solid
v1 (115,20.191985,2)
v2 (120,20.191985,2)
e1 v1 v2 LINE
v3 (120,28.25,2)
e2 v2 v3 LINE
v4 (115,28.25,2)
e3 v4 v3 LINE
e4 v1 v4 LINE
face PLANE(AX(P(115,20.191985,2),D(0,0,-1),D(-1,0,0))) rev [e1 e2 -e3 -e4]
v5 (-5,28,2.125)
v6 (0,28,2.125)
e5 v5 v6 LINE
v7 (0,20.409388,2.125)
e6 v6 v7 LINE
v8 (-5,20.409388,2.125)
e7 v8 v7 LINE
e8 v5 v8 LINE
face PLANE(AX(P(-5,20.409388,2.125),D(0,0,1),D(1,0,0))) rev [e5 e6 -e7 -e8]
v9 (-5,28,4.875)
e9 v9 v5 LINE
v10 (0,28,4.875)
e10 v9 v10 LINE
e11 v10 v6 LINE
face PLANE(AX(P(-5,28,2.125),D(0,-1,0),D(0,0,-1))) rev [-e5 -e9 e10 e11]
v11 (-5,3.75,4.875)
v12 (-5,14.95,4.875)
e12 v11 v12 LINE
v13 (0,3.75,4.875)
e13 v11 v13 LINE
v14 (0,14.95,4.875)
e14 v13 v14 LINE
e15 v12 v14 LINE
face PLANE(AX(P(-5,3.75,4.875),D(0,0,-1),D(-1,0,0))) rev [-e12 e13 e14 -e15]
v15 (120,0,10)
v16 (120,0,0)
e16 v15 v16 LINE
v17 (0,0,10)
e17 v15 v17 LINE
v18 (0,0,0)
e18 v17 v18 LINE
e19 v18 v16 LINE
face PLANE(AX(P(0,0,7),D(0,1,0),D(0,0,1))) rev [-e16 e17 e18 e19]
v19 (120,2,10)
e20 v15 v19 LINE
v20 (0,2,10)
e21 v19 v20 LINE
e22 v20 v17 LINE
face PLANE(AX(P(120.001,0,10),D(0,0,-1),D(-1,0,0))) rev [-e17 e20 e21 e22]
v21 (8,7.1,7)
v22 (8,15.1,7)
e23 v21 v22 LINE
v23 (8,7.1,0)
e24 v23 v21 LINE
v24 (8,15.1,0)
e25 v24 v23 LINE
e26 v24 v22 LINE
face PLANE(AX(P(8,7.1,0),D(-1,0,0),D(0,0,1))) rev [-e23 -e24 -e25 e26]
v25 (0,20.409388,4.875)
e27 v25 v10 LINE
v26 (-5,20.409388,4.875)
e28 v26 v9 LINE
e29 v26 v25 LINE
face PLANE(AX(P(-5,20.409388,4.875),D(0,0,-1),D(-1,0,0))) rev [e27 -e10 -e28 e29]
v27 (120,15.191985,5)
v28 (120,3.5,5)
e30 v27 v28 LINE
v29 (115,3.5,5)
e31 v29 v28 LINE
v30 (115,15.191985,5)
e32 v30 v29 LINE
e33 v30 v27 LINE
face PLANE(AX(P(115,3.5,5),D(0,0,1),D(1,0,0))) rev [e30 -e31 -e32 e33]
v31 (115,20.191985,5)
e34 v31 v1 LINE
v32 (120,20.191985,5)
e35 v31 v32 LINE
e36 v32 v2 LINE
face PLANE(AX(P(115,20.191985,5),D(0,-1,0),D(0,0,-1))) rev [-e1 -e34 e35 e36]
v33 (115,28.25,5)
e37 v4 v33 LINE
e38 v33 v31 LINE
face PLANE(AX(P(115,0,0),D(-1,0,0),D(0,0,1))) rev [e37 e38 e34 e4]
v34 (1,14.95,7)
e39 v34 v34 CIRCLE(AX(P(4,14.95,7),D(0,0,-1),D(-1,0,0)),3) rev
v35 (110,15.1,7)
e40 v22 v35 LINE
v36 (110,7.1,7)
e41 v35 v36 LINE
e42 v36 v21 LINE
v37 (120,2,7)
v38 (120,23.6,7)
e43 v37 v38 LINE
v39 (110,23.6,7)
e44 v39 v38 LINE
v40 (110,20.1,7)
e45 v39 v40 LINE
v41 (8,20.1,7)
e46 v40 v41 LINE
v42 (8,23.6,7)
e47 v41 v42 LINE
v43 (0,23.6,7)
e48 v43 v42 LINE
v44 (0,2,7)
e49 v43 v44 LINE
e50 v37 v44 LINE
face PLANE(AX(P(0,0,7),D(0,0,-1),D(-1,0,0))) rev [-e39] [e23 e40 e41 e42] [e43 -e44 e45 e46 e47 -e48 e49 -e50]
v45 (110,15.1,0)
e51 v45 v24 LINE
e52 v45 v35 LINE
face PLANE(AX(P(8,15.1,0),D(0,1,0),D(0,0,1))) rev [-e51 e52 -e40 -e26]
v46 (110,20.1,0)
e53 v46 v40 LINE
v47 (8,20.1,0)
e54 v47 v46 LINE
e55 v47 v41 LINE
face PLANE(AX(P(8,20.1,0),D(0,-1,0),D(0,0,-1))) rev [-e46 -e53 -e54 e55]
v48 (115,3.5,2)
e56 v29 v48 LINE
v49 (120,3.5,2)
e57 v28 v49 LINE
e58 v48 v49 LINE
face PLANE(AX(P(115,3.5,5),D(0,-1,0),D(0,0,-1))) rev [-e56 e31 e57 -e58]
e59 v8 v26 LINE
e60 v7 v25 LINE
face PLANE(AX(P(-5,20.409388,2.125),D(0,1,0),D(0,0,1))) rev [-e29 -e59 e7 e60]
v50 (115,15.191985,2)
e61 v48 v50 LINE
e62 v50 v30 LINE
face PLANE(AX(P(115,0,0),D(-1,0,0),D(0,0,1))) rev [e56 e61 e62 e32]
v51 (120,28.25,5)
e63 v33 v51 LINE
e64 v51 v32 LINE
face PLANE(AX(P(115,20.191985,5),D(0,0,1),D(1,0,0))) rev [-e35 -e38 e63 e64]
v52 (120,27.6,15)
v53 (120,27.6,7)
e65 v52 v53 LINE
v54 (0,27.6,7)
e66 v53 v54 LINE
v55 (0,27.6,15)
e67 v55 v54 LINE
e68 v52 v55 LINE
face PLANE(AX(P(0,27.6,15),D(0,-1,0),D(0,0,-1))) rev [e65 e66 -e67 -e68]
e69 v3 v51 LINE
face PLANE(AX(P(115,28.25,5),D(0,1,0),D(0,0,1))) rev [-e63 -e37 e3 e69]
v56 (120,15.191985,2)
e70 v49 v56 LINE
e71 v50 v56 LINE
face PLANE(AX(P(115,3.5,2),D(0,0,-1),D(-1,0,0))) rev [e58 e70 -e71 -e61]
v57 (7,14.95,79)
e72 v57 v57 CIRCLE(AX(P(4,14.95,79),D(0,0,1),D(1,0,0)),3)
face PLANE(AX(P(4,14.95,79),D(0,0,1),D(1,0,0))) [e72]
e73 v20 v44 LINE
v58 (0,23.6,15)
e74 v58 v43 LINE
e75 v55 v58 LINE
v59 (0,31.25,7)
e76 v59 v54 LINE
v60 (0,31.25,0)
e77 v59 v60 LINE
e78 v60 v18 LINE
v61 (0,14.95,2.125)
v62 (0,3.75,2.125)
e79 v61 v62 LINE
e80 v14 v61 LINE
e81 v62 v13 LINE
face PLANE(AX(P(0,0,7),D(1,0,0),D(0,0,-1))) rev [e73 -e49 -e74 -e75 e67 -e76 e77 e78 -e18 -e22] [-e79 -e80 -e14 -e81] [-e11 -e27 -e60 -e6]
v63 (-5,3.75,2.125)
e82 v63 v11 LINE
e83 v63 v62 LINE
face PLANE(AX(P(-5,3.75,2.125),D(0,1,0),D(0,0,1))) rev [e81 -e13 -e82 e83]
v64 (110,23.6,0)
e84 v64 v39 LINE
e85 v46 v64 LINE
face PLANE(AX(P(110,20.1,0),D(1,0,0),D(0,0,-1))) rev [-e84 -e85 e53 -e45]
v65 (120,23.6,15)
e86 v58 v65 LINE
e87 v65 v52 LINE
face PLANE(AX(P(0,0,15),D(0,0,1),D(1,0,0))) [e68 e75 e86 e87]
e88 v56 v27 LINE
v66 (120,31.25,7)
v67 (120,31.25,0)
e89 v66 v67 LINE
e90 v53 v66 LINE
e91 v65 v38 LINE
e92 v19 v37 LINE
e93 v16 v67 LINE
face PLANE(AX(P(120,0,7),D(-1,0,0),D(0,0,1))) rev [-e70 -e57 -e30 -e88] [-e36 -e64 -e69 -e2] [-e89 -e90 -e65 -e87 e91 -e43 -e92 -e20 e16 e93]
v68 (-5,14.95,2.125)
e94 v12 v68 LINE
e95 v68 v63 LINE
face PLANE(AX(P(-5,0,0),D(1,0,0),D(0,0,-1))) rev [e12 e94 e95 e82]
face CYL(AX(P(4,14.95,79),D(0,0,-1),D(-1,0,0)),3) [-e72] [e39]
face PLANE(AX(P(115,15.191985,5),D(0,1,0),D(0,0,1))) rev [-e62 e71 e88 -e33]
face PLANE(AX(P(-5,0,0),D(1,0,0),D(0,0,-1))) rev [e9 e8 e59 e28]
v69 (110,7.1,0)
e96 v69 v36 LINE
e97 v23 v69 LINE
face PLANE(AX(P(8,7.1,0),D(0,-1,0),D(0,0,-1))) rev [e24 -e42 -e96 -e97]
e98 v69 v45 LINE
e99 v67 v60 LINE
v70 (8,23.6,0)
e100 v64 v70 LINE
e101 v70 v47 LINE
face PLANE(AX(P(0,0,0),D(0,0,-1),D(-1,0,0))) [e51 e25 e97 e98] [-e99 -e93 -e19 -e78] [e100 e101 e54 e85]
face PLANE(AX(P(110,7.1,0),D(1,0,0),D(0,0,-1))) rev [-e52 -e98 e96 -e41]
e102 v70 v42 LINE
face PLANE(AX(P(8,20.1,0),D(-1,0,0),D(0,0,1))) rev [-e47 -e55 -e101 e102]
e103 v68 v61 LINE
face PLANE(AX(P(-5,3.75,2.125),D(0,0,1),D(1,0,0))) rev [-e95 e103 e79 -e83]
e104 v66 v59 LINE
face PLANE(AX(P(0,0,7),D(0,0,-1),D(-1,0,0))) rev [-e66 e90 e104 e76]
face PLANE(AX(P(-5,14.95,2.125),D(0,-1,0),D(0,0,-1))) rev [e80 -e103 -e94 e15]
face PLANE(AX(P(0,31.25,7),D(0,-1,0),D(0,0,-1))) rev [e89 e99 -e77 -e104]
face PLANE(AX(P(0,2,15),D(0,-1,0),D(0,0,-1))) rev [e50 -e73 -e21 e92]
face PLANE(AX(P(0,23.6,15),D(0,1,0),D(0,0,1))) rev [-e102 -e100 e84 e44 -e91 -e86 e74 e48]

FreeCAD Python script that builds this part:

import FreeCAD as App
import Part
import Sketcher

V = App.Vector

doc = App.newDocument("Part")
body = doc.addObject("PartDesign::Body", "Body")

sketch1 = body.newObject("Sketcher::SketchObject", "Sketch")
sketch1.AttachmentSupport = (doc.getObject("XY_Plane"), [""])
sketch1.MapMode = "FlatFace"
sketch1.addGeometry(Part.LineSegment(V(0, 31, 0), V(0, 0, 0)), False)
sketch1.addGeometry(Part.LineSegment(V(0, 0, 0), V(120, 0, 0)), False)
sketch1.addGeometry(Part.LineSegment(V(120, 0, 0), V(120, 31, 0)), False)
sketch1.addGeometry(Part.LineSegment(V(120, 31, 0), V(0, 31, 0)), False)
sketch1.addConstraint(Sketcher.Constraint("Coincident", 0, 2, 1, 1))
sketch1.addConstraint(Sketcher.Constraint("Coincident", 1, 2, 2, 1))
sketch1.addConstraint(Sketcher.Constraint("Coincident", 2, 2, 3, 1))
sketch1.addConstraint(Sketcher.Constraint("Coincident", 3, 2, 0, 1))
sketch1.addConstraint(Sketcher.Constraint("Vertical", 0))
sketch1.addConstraint(Sketcher.Constraint("Horizontal", 1))
sketch1.addConstraint(Sketcher.Constraint("Vertical", 2))
sketch1.addConstraint(Sketcher.Constraint("Horizontal", 3))
sketch1.addConstraint(Sketcher.Constraint("Coincident", 0, 2, -1, 1))
sketch1.addConstraint(Sketcher.Constraint("DistanceX", 1, 1, 1, 2, 120.0))
sketch1.addConstraint(Sketcher.Constraint("DistanceY", 0, 2, 0, 1, 31.25))
pad1 = body.newObject("PartDesign::Pad", "Pad")
pad1.Profile = sketch1
pad1.Length = 7

sketch2 = body.newObject("Sketcher::SketchObject", "Sketch001")
sketch2.AttachmentSupport = (doc.getObject("XY_Plane"), [""])
sketch2.MapMode = "FlatFace"
sketch2.AttachmentOffset = App.Placement(V(0, 0, 7), App.Rotation())
sketch2.addGeometry(Part.LineSegment(V(0, 27.6, 0), V(0, 23.6, 0)), False)
sketch2.addGeometry(Part.LineSegment(V(0, 23.6, 0), V(120, 23.6, 0)), False)
sketch2.addGeometry(Part.LineSegment(V(120, 23.6, 0), V(120, 27.6, 0)), False)
sketch2.addGeometry(Part.LineSegment(V(120, 27.6, 0), V(0, 27.6, 0)), False)
sketch2.addGeometry(Part.LineSegment(V(0, 2, 0), V(0, 0, 0)), False)
sketch2.addGeometry(Part.LineSegment(V(0, 0, 0), V(120, 0, 0)), False)
sketch2.addGeometry(Part.LineSegment(V(120, 0, 0), V(120, 2, 0)), False)
sketch2.addGeometry(Part.LineSegment(V(120, 2, 0), V(0, 2, 0)), False)
sketch2.addConstraint(Sketcher.Constraint("Coincident", 0, 2, 1, 1))
sketch2.addConstraint(Sketcher.Constraint("Coincident", 1, 2, 2, 1))
sketch2.addConstraint(Sketcher.Constraint("Coincident", 2, 2, 3, 1))
sketch2.addConstraint(Sketcher.Constraint("Coincident", 3, 2, 0, 1))
sketch2.addConstraint(Sketcher.Constraint("Coincident", 4, 2, 5, 1))
sketch2.addConstraint(Sketcher.Constraint("Coincident", 5, 2, 6, 1))
sketch2.addConstraint(Sketcher.Constraint("Coincident", 6, 2, 7, 1))
sketch2.addConstraint(Sketcher.Constraint("Coincident", 7, 2, 4, 1))
sketch2.addConstraint(Sketcher.Constraint("Vertical", 0))
sketch2.addConstraint(Sketcher.Constraint("Horizontal", 1))
sketch2.addConstraint(Sketcher.Constraint("Vertical", 2))
sketch2.addConstraint(Sketcher.Constraint("Horizontal", 3))
sketch2.addConstraint(Sketcher.Constraint("Vertical", 4))
sketch2.addConstraint(Sketcher.Constraint("Horizontal", 5))
sketch2.addConstraint(Sketcher.Constraint("Vertical", 6))
sketch2.addConstraint(Sketcher.Constraint("Horizontal", 7))
sketch2.addConstraint(Sketcher.Constraint("Coincident", 4, 2, -1, 1))
sketch2.addConstraint(Sketcher.Constraint("PointOnObject", 0, 2, -2))
sketch2.addConstraint(Sketcher.Constraint("Vertical", 2, 2, 5, 2))
sketch2.addConstraint(Sketcher.Constraint("DistanceX", 1, 1, 1, 2, 120.0))
sketch2.addConstraint(Sketcher.Constraint("DistanceY", 0, 2, 0, 1, 4.0))
sketch2.addConstraint(Sketcher.Constraint("DistanceY", 4, 2, 4, 1, 2.0))
sketch2.addConstraint(Sketcher.Constraint("DistanceY", -1, 1, 0, 2, 23.6))
pad2 = body.newObject("PartDesign::Pad", "Pad001")
pad2.Profile = sketch2
pad2.Length = 8

sketch3 = body.newObject("Sketcher::SketchObject", "Sketch002")
sketch3.AttachmentSupport = (doc.getObject("XY_Plane"), [""])
sketch3.MapMode = "FlatFace"
sketch3.AttachmentOffset = App.Placement(V(0, 0, 7), App.Rotation())
sketch3.addGeometry(Part.LineSegment(V(8, 15.1, 0), V(8, 7.1, 0)), False)
sketch3.addGeometry(Part.LineSegment(V(8, 7.1, 0), V(110, 7.1, 0)), False)
sketch3.addGeometry(Part.LineSegment(V(110, 7.1, 0), V(110, 15.1, 0)), False)
sketch3.addGeometry(Part.LineSegment(V(110, 15.1, 0), V(8, 15.1, 0)), False)
sketch3.addGeometry(Part.LineSegment(V(8, 23.6, 0), V(8, 20.1, 0)), False)
sketch3.addGeometry(Part.LineSegment(V(8, 20.1, 0), V(110, 20.1, 0)), False)
sketch3.addGeometry(Part.LineSegment(V(110, 20.1, 0), V(110, 23.6, 0)), False)
sketch3.addGeometry(Part.LineSegment(V(110, 23.6, 0), V(8, 23.6, 0)), False)
sketch3.addConstraint(Sketcher.Constraint("Coincident", 0, 2, 1, 1))
sketch3.addConstraint(Sketcher.Constraint("Coincident", 1, 2, 2, 1))
sketch3.addConstraint(Sketcher.Constraint("Coincident", 2, 2, 3, 1))
sketch3.addConstraint(Sketcher.Constraint("Coincident", 3, 2, 0, 1))
sketch3.addConstraint(Sketcher.Constraint("Coincident", 4, 2, 5, 1))
sketch3.addConstraint(Sketcher.Constraint("Coincident", 5, 2, 6, 1))
sketch3.addConstraint(Sketcher.Constraint("Coincident", 6, 2, 7, 1))
sketch3.addConstraint(Sketcher.Constraint("Coincident", 7, 2, 4, 1))
sketch3.addConstraint(Sketcher.Constraint("Vertical", 0))
sketch3.addConstraint(Sketcher.Constraint("Horizontal", 1))
sketch3.addConstraint(Sketcher.Constraint("Vertical", 2))
sketch3.addConstraint(Sketcher.Constraint("Horizontal", 3))
sketch3.addConstraint(Sketcher.Constraint("Vertical", 4))
sketch3.addConstraint(Sketcher.Constraint("Horizontal", 5))
sketch3.addConstraint(Sketcher.Constraint("Vertical", 6))
sketch3.addConstraint(Sketcher.Constraint("Horizontal", 7))
sketch3.addConstraint(Sketcher.Constraint("Vertical", 3, 2, 4, 2))
sketch3.addConstraint(Sketcher.Constraint("Vertical", 2, 2, 5, 2))
sketch3.addConstraint(Sketcher.Constraint("DistanceX", 1, 1, 1, 2, 102.0))
sketch3.addConstraint(Sketcher.Constraint("DistanceY", 0, 2, 0, 1, 8.0))
sketch3.addConstraint(Sketcher.Constraint("DistanceY", 4, 2, 4, 1, 3.5))
sketch3.addConstraint(Sketcher.Constraint("DistanceX", -1, 1, 0, 2, 8.0))
sketch3.addConstraint(Sketcher.Constraint("DistanceY", 3, 2, 4, 2, 5.0))
sketch3.addConstraint(Sketcher.Constraint("DistanceY", -1, 1, 0, 2, 7.1))
pocket1 = body.newObject("PartDesign::Pocket", "Pocket")
pocket1.Profile = sketch3
pocket1.Type = "ThroughAll"
pocket1.Midplane = True

sketch4 = body.newObject("Sketcher::SketchObject", "Sketch003")
sketch4.AttachmentSupport = (doc.getObject("YZ_Plane"), [""])
sketch4.MapMode = "FlatFace"
sketch4.addGeometry(Part.LineSegment(V(28, 2.1, 0), V(20.4, 2.1, 0)), False)
sketch4.addGeometry(Part.LineSegment(V(20.4, 2.1, 0), V(20.4, 4.9, 0)), False)
sketch4.addGeometry(Part.LineSegment(V(20.4, 4.9, 0), V(28, 4.9, 0)), False)
sketch4.addGeometry(Part.LineSegment(V(28, 4.9, 0), V(28, 2.1, 0)), False)
sketch4.addGeometry(Part.LineSegment(V(14.9, 2.1, 0), V(3.8, 2.1, 0)), False)
sketch4.addGeometry(Part.LineSegment(V(3.8, 2.1, 0), V(3.8, 4.9, 0)), False)
sketch4.addGeometry(Part.LineSegment(V(3.8, 4.9, 0), V(14.9, 4.9, 0)), False)
sketch4.addGeometry(Part.LineSegment(V(14.9, 4.9, 0), V(14.9, 2.1, 0)), False)
sketch4.addConstraint(Sketcher.Constraint("Coincident", 0, 2, 1, 1))
sketch4.addConstraint(Sketcher.Constraint("Coincident", 1, 2, 2, 1))
sketch4.addConstraint(Sketcher.Constraint("Coincident", 2, 2, 3, 1))
sketch4.addConstraint(Sketcher.Constraint("Coincident", 3, 2, 0, 1))
sketch4.addConstraint(Sketcher.Constraint("Coincident", 4, 2, 5, 1))
sketch4.addConstraint(Sketcher.Constraint("Coincident", 5, 2, 6, 1))
sketch4.addConstraint(Sketcher.Constraint("Coincident", 6, 2, 7, 1))
sketch4.addConstraint(Sketcher.Constraint("Coincident", 7, 2, 4, 1))
sketch4.addConstraint(Sketcher.Constraint("Horizontal", 0))
sketch4.addConstraint(Sketcher.Constraint("Vertical", 1))
sketch4.addConstraint(Sketcher.Constraint("Horizontal", 2))
sketch4.addConstraint(Sketcher.Constraint("Vertical", 3))
sketch4.addConstraint(Sketcher.Constraint("Horizontal", 4))
sketch4.addConstraint(Sketcher.Constraint("Vertical", 5))
sketch4.addConstraint(Sketcher.Constraint("Horizontal", 6))
sketch4.addConstraint(Sketcher.Constraint("Vertical", 7))
sketch4.addConstraint(Sketcher.Constraint("Horizontal", 3, 2, 4, 2))
sketch4.addConstraint(Sketcher.Constraint("Horizontal", 2, 2, 5, 2))
sketch4.addConstraint(Sketcher.Constraint("DistanceX", 4, 2, 4, 1, 11.2))
sketch4.addConstraint(Sketcher.Constraint("DistanceX", -1, 1, 2, 2, 28.0))
sketch4.addConstraint(Sketcher.Constraint("DistanceY", 1, 1, 1, 2, 2.75))
sketch4.addConstraint(Sketcher.Constraint("DistanceX", -1, 1, 4, 2, 3.75))
sketch4.addConstraint(Sketcher.Constraint("DistanceY", -1, 1, 0, 2, 2.125))
sketch4.addConstraint(Sketcher.Constraint("DistanceX", 0, 2, 0, 1, 7.590612))
pad3 = body.newObject("PartDesign::Pad", "Pad002")
pad3.Profile = sketch4
pad3.Length = 5
pad3.Reversed = True

sketch5 = body.newObject("Sketcher::SketchObject", "Sketch004")
sketch5.AttachmentSupport = (doc.getObject("YZ_Plane"), [""])
sketch5.MapMode = "FlatFace"
sketch5.AttachmentOffset = App.Placement(V(0, 0, 120), App.Rotation())
sketch5.addGeometry(Part.LineSegment(V(28.2, 5, 0), V(20.2, 5, 0)), False)
sketch5.addGeometry(Part.LineSegment(V(20.2, 5, 0), V(20.2, 2, 0)), False)
sketch5.addGeometry(Part.LineSegment(V(20.2, 2, 0), V(28.2, 2, 0)), False)
sketch5.addGeometry(Part.LineSegment(V(28.2, 2, 0), V(28.2, 5, 0)), False)
sketch5.addGeometry(Part.LineSegment(V(15.2, 5, 0), V(3.5, 5, 0)), False)
sketch5.addGeometry(Part.LineSegment(V(3.5, 5, 0), V(3.5, 2, 0)), False)
sketch5.addGeometry(Part.LineSegment(V(3.5, 2, 0), V(15.2, 2, 0)), False)
sketch5.addGeometry(Part.LineSegment(V(15.2, 2, 0), V(15.2, 5, 0)), False)
sketch5.addConstraint(Sketcher.Constraint("Coincident", 0, 2, 1, 1))
sketch5.addConstraint(Sketcher.Constraint("Coincident", 1, 2, 2, 1))
sketch5.addConstraint(Sketcher.Constraint("Coincident", 2, 2, 3, 1))
sketch5.addConstraint(Sketcher.Constraint("Coincident", 3, 2, 0, 1))
sketch5.addConstraint(Sketcher.Constraint("Coincident", 4, 2, 5, 1))
sketch5.addConstraint(Sketcher.Constraint("Coincident", 5, 2, 6, 1))
sketch5.addConstraint(Sketcher.Constraint("Coincident", 6, 2, 7, 1))
sketch5.addConstraint(Sketcher.Constraint("Coincident", 7, 2, 4, 1))
sketch5.addConstraint(Sketcher.Constraint("Horizontal", 0))
sketch5.addConstraint(Sketcher.Constraint("Vertical", 1))
sketch5.addConstraint(Sketcher.Constraint("Horizontal", 2))
sketch5.addConstraint(Sketcher.Constraint("Vertical", 3))
sketch5.addConstraint(Sketcher.Constraint("Horizontal", 4))
sketch5.addConstraint(Sketcher.Constraint("Vertical", 5))
sketch5.addConstraint(Sketcher.Constraint("Horizontal", 6))
sketch5.addConstraint(Sketcher.Constraint("Vertical", 7))
sketch5.addConstraint(Sketcher.Constraint("Horizontal", 3, 2, 4, 2))
sketch5.addConstraint(Sketcher.Constraint("Horizontal", 2, 2, 5, 2))
sketch5.addConstraint(Sketcher.Constraint("DistanceY", 1, 2, 1, 1, 3.0))
sketch5.addConstraint(Sketcher.Constraint("DistanceY", -1, 1, 0, 2, 5.0))
sketch5.addConstraint(Sketcher.Constraint("DistanceX", 6, 2, 1, 2, 5.0))
sketch5.addConstraint(Sketcher.Constraint("DistanceX", -1, 1, 4, 2, 3.5))
sketch5.addConstraint(Sketcher.Constraint("DistanceX", -1, 1, 2, 2, 28.25))
sketch5.addConstraint(Sketcher.Constraint("DistanceX", 0, 2, 0, 1, 8.058015))
pocket2 = body.newObject("PartDesign::Pocket", "Pocket001")
pocket2.Profile = sketch5
pocket2.Length = 5

sketch6 = body.newObject("Sketcher::SketchObject", "Sketch005")
sketch6.AttachmentSupport = (doc.getObject("YZ_Plane"), [""])
sketch6.MapMode = "FlatFace"
sketch6.addGeometry(Part.LineSegment(V(2, 10, 0), V(0, 10, 0)), False)
sketch6.addGeometry(Part.LineSegment(V(0, 10, 0), V(0, 15, 0)), False)
sketch6.addGeometry(Part.LineSegment(V(0, 15, 0), V(2, 15, 0)), False)
sketch6.addGeometry(Part.LineSegment(V(2, 15, 0), V(2, 10, 0)), False)
sketch6.addConstraint(Sketcher.Constraint("Coincident", 0, 2, 1, 1))
sketch6.addConstraint(Sketcher.Constraint("Coincident", 1, 2, 2, 1))
sketch6.addConstraint(Sketcher.Constraint("Coincident", 2, 2, 3, 1))
sketch6.addConstraint(Sketcher.Constraint("Coincident", 3, 2, 0, 1))
sketch6.addConstraint(Sketcher.Constraint("Horizontal", 0))
sketch6.addConstraint(Sketcher.Constraint("Vertical", 1))
sketch6.addConstraint(Sketcher.Constraint("Horizontal", 2))
sketch6.addConstraint(Sketcher.Constraint("Vertical", 3))
sketch6.addConstraint(Sketcher.Constraint("PointOnObject", 0, 2, -2))
sketch6.addConstraint(Sketcher.Constraint("DistanceX", 0, 2, 0, 1, 2.0))
sketch6.addConstraint(Sketcher.Constraint("DistanceY", 1, 1, 1, 2, 5.0))
sketch6.addConstraint(Sketcher.Constraint("DistanceY", -1, 1, 0, 2, 10.0))
pocket3 = body.newObject("PartDesign::Pocket", "Pocket002")
pocket3.Profile = sketch6
pocket3.Type = "UpToFirst"
pocket3.Reversed = True

sketch7 = body.newObject("Sketcher::SketchObject", "Sketch006")
sketch7.AttachmentSupport = (doc.getObject("XY_Plane"), [""])
sketch7.MapMode = "FlatFace"
sketch7.AttachmentOffset = App.Placement(V(0, 0, 7), App.Rotation())
sketch7.addGeometry(Part.Circle(V(4, 14.9, 0), V(0, 0, 1), 3), False)
sketch7.addConstraint(Sketcher.Constraint("Diameter", 0, 6.0))
sketch7.addConstraint(Sketcher.Constraint("DistanceX", -1, 1, 0, 3, 4.0))
sketch7.addConstraint(Sketcher.Constraint("DistanceY", -1, 1, 0, 3, 14.95))
pad4 = body.newObject("PartDesign::Pad", "Pad003")
pad4.Profile = sketch7
pad4.Length = 72

doc.recompute()
